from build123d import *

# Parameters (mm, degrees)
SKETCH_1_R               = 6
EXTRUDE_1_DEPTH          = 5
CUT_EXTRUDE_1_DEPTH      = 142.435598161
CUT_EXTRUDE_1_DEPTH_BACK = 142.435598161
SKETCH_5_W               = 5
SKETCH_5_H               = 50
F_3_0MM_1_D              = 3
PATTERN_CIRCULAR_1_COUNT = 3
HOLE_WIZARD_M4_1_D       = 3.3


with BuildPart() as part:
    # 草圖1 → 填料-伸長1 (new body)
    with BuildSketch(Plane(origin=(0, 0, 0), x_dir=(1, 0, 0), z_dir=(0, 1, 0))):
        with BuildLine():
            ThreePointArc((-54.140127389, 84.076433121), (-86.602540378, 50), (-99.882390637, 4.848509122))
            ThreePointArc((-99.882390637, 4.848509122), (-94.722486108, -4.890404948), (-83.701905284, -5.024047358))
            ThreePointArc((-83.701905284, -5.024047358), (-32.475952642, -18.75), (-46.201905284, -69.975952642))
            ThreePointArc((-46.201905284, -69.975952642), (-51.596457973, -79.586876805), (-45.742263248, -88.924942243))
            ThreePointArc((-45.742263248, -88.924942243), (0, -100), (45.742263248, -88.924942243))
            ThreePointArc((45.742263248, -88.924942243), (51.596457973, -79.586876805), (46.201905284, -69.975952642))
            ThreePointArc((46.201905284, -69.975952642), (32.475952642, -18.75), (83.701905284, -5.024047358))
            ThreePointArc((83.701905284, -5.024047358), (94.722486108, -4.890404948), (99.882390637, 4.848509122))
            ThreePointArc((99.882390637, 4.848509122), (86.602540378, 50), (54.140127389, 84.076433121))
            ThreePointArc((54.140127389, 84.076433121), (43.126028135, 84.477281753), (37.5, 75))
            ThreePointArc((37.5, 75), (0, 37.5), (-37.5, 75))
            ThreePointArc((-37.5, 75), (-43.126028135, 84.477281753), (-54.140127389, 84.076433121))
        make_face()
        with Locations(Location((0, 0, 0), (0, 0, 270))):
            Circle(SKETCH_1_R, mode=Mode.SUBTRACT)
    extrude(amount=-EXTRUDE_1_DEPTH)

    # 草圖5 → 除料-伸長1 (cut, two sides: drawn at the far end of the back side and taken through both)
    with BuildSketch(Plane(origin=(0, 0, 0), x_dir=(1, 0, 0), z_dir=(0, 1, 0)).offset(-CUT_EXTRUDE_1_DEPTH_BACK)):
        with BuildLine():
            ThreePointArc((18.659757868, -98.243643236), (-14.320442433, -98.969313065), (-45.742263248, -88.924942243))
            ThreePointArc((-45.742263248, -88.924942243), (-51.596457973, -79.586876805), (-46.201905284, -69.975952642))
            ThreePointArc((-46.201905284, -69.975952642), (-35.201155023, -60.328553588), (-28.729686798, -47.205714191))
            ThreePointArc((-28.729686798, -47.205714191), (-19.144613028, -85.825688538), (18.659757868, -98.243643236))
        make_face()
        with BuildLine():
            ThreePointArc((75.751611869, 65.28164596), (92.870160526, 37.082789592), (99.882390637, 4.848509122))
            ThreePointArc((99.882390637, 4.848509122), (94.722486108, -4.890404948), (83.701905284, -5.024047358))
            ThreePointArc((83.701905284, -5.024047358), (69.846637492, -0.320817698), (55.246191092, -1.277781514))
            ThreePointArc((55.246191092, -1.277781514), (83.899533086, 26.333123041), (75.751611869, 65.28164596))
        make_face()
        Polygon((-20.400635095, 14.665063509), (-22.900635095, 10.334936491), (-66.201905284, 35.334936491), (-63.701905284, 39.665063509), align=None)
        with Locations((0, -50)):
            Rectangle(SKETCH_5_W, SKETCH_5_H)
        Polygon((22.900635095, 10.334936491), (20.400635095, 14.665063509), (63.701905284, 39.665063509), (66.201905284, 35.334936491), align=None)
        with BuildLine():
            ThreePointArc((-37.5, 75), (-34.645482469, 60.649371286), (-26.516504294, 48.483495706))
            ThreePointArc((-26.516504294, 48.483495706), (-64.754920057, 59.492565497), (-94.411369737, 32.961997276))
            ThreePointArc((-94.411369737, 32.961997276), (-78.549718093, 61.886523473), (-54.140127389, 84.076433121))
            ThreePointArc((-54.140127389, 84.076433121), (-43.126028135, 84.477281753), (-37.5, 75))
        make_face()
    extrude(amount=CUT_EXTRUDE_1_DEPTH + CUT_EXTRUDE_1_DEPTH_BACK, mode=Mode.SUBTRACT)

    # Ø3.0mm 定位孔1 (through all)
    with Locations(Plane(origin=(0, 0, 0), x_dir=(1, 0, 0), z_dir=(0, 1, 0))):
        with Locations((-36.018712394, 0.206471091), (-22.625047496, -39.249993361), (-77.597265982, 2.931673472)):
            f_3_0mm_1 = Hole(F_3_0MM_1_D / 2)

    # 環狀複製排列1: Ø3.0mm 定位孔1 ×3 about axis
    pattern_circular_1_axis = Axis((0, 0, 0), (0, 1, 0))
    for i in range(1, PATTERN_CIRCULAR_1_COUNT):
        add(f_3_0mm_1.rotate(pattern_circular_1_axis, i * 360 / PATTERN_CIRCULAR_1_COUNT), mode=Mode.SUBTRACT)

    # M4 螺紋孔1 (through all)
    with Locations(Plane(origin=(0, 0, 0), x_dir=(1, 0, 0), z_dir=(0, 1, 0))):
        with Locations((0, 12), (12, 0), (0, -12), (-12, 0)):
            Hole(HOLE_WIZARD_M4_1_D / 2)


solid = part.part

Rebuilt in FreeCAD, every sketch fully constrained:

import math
import FreeCAD as App
import Part
import Sketcher

V = App.Vector
Q = App.Units.Quantity


def add_polygon(sketch, points):
    """Adds a closed chain of lines whose ends are joined by coincident constraints."""
    first, n = sketch.GeometryCount, len(points)
    for a, b in zip(points, points[1:] + points[:1]):
        sketch.addGeometry(Part.LineSegment(App.Vector(*a, 0), App.Vector(*b, 0)), False)
    for i in range(n):
        sketch.addConstraint(Sketcher.Constraint("Coincident", first + i, 2, first + (i + 1) % n, 1))

doc = App.newDocument("Part")
body = doc.addObject("PartDesign::Body", "Body")

sketch1 = doc.addObject("Sketcher::SketchObject", "Sketch")
body.addObject(sketch1)
sketch1.AttachmentSupport = (doc.XZ_Plane, [""])
sketch1.MapMode = "FlatFace"
sketch1.addGeometry([
    Part.ArcOfCircle(Part.Circle(V(0, 0, 0), V(0, 0, 1), 100), math.radians(-177), math.radians(-123)),
    Part.ArcOfCircle(Part.Circle(V(-89, -4, 0), V(0, 0, 1), 11), math.radians(60), math.radians(183)),
    Part.ArcOfCircle(Part.Circle(V(-65, 38, 0), V(0, 0, 1), 38), math.radians(-120), math.radians(60)),
    Part.ArcOfCircle(Part.Circle(V(-41, 79, 0), V(0, 0, 1), 11), math.radians(117), math.radians(240)),
    Part.ArcOfCircle(Part.Circle(V(0, 0, 0), V(0, 0, 1), 100), math.radians(63), math.radians(117)),
    Part.ArcOfCircle(Part.Circle(V(41, 79, 0), V(0, 0, 1), 11), math.radians(-60), math.radians(63)),
    Part.ArcOfCircle(Part.Circle(V(65, 38, 0), V(0, 0, 1), 38), math.radians(120), math.radians(300)),
    Part.ArcOfCircle(Part.Circle(V(89, -4, 0), V(0, 0, 1), 11), math.radians(-3), math.radians(120)),
    Part.ArcOfCircle(Part.Circle(V(0, 0, 0), V(0, 0, 1), 100), math.radians(-57), math.radians(-3)),
    Part.ArcOfCircle(Part.Circle(V(48, -75, 0), V(0, 0, 1), 11), math.radians(180), math.radians(303)),
    Part.ArcOfCircle(Part.Circle(V(0, -75, 0), V(0, 0, 1), 38), math.radians(0), math.radians(180)),
    Part.ArcOfCircle(Part.Circle(V(-48, -75, 0), V(0, 0, 1), 11), math.radians(-123), math.radians(0)),
    Part.Circle(V(0, 0, 0), V(0, 0, 1), 6),
], False)
sketch1.addConstraint([
    Sketcher.Constraint("Tangent", 0, 1, 1, 2),
    Sketcher.Constraint("Tangent", 1, 1, 2, 1),
    Sketcher.Constraint("Tangent", 2, 2, 3, 2),
    Sketcher.Constraint("Tangent", 3, 1, 4, 2),
    Sketcher.Constraint("Tangent", 4, 1, 5, 2),
    Sketcher.Constraint("Tangent", 5, 1, 6, 1),
    Sketcher.Constraint("Tangent", 6, 2, 7, 2),
    Sketcher.Constraint("Tangent", 7, 1, 8, 2),
    Sketcher.Constraint("Tangent", 8, 1, 9, 2),
    Sketcher.Constraint("Tangent", 9, 1, 10, 1),
    Sketcher.Constraint("Tangent", 10, 2, 11, 2),
    Sketcher.Constraint("Tangent", 11, 1, 0, 2),
    Sketcher.Constraint("Coincident", 0, 3, -1, 1),
    Sketcher.Constraint("Coincident", 4, 3, -1, 1),
    Sketcher.Constraint("Coincident", 8, 3, -1, 1),
    Sketcher.Constraint("Coincident", 12, 3, -1, 1),
    Sketcher.Constraint("Equal", 1, 3),
    Sketcher.Constraint("Equal", 0, 4),
    Sketcher.Constraint("Equal", 3, 5),
    Sketcher.Constraint("Equal", 2, 6),
    Sketcher.Constraint("Equal", 5, 7),
    Sketcher.Constraint("Equal", 4, 8),
    Sketcher.Constraint("Equal", 7, 9),
    Sketcher.Constraint("Equal", 6, 10),
    Sketcher.Constraint("Equal", 9, 11),
    Sketcher.Constraint("Symmetric", 2, 3, 6, 3, -2),
    Sketcher.Constraint("PointOnObject", 10, 3, -2),
    Sketcher.Constraint("Horizontal", 9, 3, 10, 3),
    Sketcher.Constraint("Diameter", 12, Q("12 mm")),
    Sketcher.Constraint("Radius", 0, Q("100 mm")),
    Sketcher.Constraint("Radius", 2, Q("37.5 mm")),
    Sketcher.Constraint("DistanceY", 9, 3, -1, 1, Q("75 mm")),
    Sketcher.Constraint("DistanceY", -1, 1, 2, 3, Q("37.5 mm")),
    Sketcher.Constraint("DistanceX", 1, 1, 2, 2, Q("37.5 mm")),
])
pad1 = doc.addObject("PartDesign::Pad", "Pad")
body.addObject(pad1)
pad1.Profile = sketch1
pad1.Length = 5

sketch2 = doc.addObject("Sketcher::SketchObject", "Sketch001")
body.addObject(sketch2)
sketch2.AttachmentSupport = (doc.XZ_Plane, [""])
sketch2.MapMode = "FlatFace"
sketch2.addGeometry(Part.ArcOfCircle(Part.Circle(V(0, 0, 0), V(0, 0, 1), 100), math.radians(79), math.radians(117)), False)
sketch2.addGeometry(Part.ArcOfCircle(Part.Circle(V(11, 57.8, 0), V(0, 0, 1), 41.1), math.radians(79), math.radians(195)), False)
sketch2.addGeometry(Part.ArcOfCircle(Part.Circle(V(-65, 37.5, 0), V(0, 0, 1), 37.5), math.radians(15), math.radians(60)), False)
sketch2.addGeometry(Part.ArcOfCircle(Part.Circle(V(-40.8, 79.3, 0), V(0, 0, 1), 10.8), math.radians(117), math.radians(240)), False)
sketch2.addGeometry(Part.ArcOfCircle(Part.Circle(V(0, 0, 0), V(0, 0, 1), 100), math.radians(-41), math.radians(-3)), False)
sketch2.addGeometry(Part.ArcOfCircle(Part.Circle(V(44.6, -38.4, 0), V(0, 0, 1), 41.1), math.radians(-41), math.radians(75)), False)
sketch2.addGeometry(Part.ArcOfCircle(Part.Circle(V(65, 37.5, 0), V(0, 0, 1), 37.5), math.radians(-105), math.radians(-60)), False)
sketch2.addGeometry(Part.ArcOfCircle(Part.Circle(V(89.1, -4.3, 0), V(0, 0, 1), 10.8), math.radians(-3), math.radians(120)), False)
add_polygon(sketch2, [(-22.9, -10.3), (-20.4, -14.7), (-63.7, -39.7), (-66.2, -35.3)])
add_polygon(sketch2, [(-2.5, 25), (-2.5, 75), (2.5, 75), (2.5, 25)])
add_polygon(sketch2, [(20.4, -14.7), (22.9, -10.3), (66.2, -35.3), (63.7, -39.7)])
sketch2.addGeometry(Part.ArcOfCircle(Part.Circle(V(0, -75, 0), V(0, 0, 1), 37.5), math.radians(135), math.radians(180)), False)
sketch2.addGeometry(Part.ArcOfCircle(Part.Circle(V(-48.3, -75, 0), V(0, 0, 1), 10.8), math.radians(-123), math.radians(0)), False)
sketch2.addGeometry(Part.ArcOfCircle(Part.Circle(V(0, 0, 0), V(0, 0, 1), 100), math.radians(-161), math.radians(-123)), False)
sketch2.addGeometry(Part.ArcOfCircle(Part.Circle(V(-55.6, -19.4, 0), V(0, 0, 1), 41.1), math.radians(-161), math.radians(-45)), False)
sketch2.addConstraint([
    Sketcher.Constraint("Tangent", 0, 1, 1, 1),
    Sketcher.Constraint("Tangent", 1, 2, 2, 1),
    Sketcher.Constraint("Tangent", 2, 2, 3, 2),
    Sketcher.Constraint("Tangent", 3, 1, 0, 2),
    Sketcher.Constraint("Tangent", 4, 1, 5, 1),
    Sketcher.Constraint("Tangent", 5, 2, 6, 1),
    Sketcher.Constraint("Tangent", 6, 2, 7, 2),
    Sketcher.Constraint("Tangent", 7, 1, 4, 2),
    Sketcher.Constraint("Tangent", 20, 2, 21, 2),
    Sketcher.Constraint("Tangent", 21, 1, 22, 2),
    Sketcher.Constraint("Tangent", 22, 1, 23, 1),
    Sketcher.Constraint("Tangent", 23, 2, 20, 1),
    Sketcher.Constraint("Vertical", 12),
    Sketcher.Constraint("Horizontal", 13),
    Sketcher.Constraint("Vertical", 14),
    Sketcher.Constraint("Horizontal", 15),
    Sketcher.Constraint("Coincident", 0, 3, -1, 1),
    Sketcher.Constraint("Coincident", 4, 3, -1, 1),
    Sketcher.Constraint("Coincident", 22, 3, -1, 1),
    Sketcher.Constraint("Equal", 0, 4),
    Sketcher.Constraint("Equal", 1, 5),
    Sketcher.Constraint("Equal", 2, 6),
    Sketcher.Constraint("Equal", 3, 7),
    Sketcher.Constraint("Equal", 6, 20),
    Sketcher.Constraint("Equal", 7, 21),
    Sketcher.Constraint("Equal", 4, 22),
    Sketcher.Constraint("Equal", 5, 23),
    Sketcher.Constraint("Symmetric", 2, 3, 6, 3, -2),
    Sketcher.Constraint("Symmetric", 11, 2, 16, 2, -2),
    Sketcher.Constraint("Symmetric", 10, 2, 17, 2, -2),
    Sketcher.Constraint("Symmetric", 9, 2, 18, 2, -2),
    Sketcher.Constraint("Symmetric", 8, 2, 19, 2, -2),
    Sketcher.Constraint("PointOnObject", 20, 3, -2),
    Sketcher.Constraint("Perpendicular", 8, 9),
    Sketcher.Constraint("Perpendicular", 9, 10),
    Sketcher.Constraint("Perpendicular", 10, 11),
    Sketcher.Constraint("Horizontal", 20, 3, 21, 3),
    Sketcher.Constraint("Radius", 0, Q("100 mm")),
    Sketcher.Constraint("Radius", 2, Q("37.5 mm")),
    Sketcher.Constraint("DistanceX", 13, 1, 13, 2, Q("5 mm")),
    Sketcher.Constraint("DistanceY", 12, 1, 12, 2, Q("50 mm")),
    Sketcher.Constraint("Angle", 8, Q("-60 deg")),
    Sketcher.Constraint("Distance", 8, Q("5 mm")),
    Sketcher.Constraint("Distance", 9, Q("50 mm")),
    Sketcher.Constraint("DistanceY", 20, 3, -1, 1, Q("75 mm")),
    Sketcher.Constraint("DistanceY", -1, 1, 12, 2, Q("75 mm")),
    Sketcher.Constraint("DistanceY", -1, 1, 2, 3, Q("37.5 mm")),
    Sketcher.Constraint("DistanceX", 12, 2, -1, 1, Q("2.5 mm")),
    Sketcher.Constraint("DistanceX", 17, 2, 6, 2, Q("17.5 mm")),
    Sketcher.Constraint("Radius", 1, Q("41.117989 mm")),
    Sketcher.Constraint("DistanceX", 2, 3, 2, 2, Q("18.75 mm")),
    Sketcher.Constraint("DistanceY", 10, 2, 23, 3, Q("15.92625 mm")),
])
pocket1 = doc.addObject("PartDesign::Pocket", "Pocket")
body.addObject(pocket1)
pocket1.Profile = sketch2
pocket1.Type = "ThroughAll"
pocket1.Midplane = True

sketch3 = doc.addObject("Sketcher::SketchObject", "Sketch002")
body.addObject(sketch3)
sketch3.AttachmentSupport = (doc.XZ_Plane, [""])
sketch3.MapMode = "FlatFace"
sketch3.addGeometry([
    Part.Circle(V(-36, -0.2, 0), V(0, 0, 1), 1.5),
    Part.Circle(V(-22.6, 39.2, 0), V(0, 0, 1), 1.5),
    Part.Circle(V(-77.6, -2.9, 0), V(0, 0, 1), 1.5),
], False)
sketch3.addConstraint([
    Sketcher.Constraint("Equal", 0, 1),
    Sketcher.Constraint("Equal", 1, 2),
    Sketcher.Constraint("Diameter", 0, Q("3 mm")),
    Sketcher.Constraint("DistanceY", 0, 3, -1, 1, Q("0.206471 mm")),
    Sketcher.Constraint("DistanceX", 2, 3, 1, 3, Q("54.972218 mm")),
    Sketcher.Constraint("DistanceX", 0, 3, -1, 1, Q("36.018712 mm")),
    Sketcher.Constraint("DistanceX", 1, 3, -1, 1, Q("22.625047 mm")),
    Sketcher.Constraint("DistanceY", -1, 1, 1, 3, Q("39.249993 mm")),
    Sketcher.Constraint("DistanceY", 2, 3, -1, 1, Q("2.931673 mm")),
])
doc.recompute()
hole = doc.addObject("PartDesign::Hole", "Hole")
body.addObject(hole)
hole.Profile = sketch3
hole.ThreadType = "None"
hole.Diameter = 3
hole.DepthType = "ThroughAll"
hole.Reversed = True
doc.recompute()

polarpattern = doc.addObject("PartDesign::PolarPattern", "PolarPattern")
body.addObject(polarpattern)
polarpattern.Originals = [hole]
polarpattern.Axis = (doc.Y_Axis, [""])
polarpattern.Angle = 360
polarpattern.Occurrences = 3
body.Tip = polarpattern

sketch4 = doc.addObject("Sketcher::SketchObject", "Sketch003")
body.addObject(sketch4)
sketch4.AttachmentSupport = (doc.XZ_Plane, [""])
sketch4.MapMode = "FlatFace"
sketch4.addGeometry([
    Part.Circle(V(0, -12, 0), V(0, 0, 1), 1.6),
    Part.Circle(V(12, 0, 0), V(0, 0, 1), 1.6),
    Part.Circle(V(0, 12, 0), V(0, 0, 1), 1.6),
    Part.Circle(V(-12, 0, 0), V(0, 0, 1), 1.6),
], False)
sketch4.addConstraint([
    Sketcher.Constraint("Equal", 0, 1),
    Sketcher.Constraint("Equal", 1, 2),
    Sketcher.Constraint("Equal", 2, 3),
    Sketcher.Constraint("Symmetric", 0, 3, 2, 3, -1, 1),
    Sketcher.Constraint("Symmetric", 1, 3, 3, 3, -1, 1),
    Sketcher.Constraint("PointOnObject", 0, 3, -2),
    Sketcher.Constraint("PointOnObject", 1, 3, -1),
    Sketcher.Constraint("Diameter", 0, Q("3.3 mm")),
    Sketcher.Constraint("DistanceY", 0, 3, -1, 1, Q("12 mm")),
    Sketcher.Constraint("DistanceX", -1, 1, 1, 3, Q("12 mm")),
])
doc.recompute()
hole2 = doc.addObject("PartDesign::Hole", "Hole001")
body.addObject(hole2)
hole2.Profile = sketch4
hole2.ThreadType = "None"
hole2.Diameter = 3.3
hole2.DepthType = "ThroughAll"
hole2.Reversed = True

doc.recompute()
